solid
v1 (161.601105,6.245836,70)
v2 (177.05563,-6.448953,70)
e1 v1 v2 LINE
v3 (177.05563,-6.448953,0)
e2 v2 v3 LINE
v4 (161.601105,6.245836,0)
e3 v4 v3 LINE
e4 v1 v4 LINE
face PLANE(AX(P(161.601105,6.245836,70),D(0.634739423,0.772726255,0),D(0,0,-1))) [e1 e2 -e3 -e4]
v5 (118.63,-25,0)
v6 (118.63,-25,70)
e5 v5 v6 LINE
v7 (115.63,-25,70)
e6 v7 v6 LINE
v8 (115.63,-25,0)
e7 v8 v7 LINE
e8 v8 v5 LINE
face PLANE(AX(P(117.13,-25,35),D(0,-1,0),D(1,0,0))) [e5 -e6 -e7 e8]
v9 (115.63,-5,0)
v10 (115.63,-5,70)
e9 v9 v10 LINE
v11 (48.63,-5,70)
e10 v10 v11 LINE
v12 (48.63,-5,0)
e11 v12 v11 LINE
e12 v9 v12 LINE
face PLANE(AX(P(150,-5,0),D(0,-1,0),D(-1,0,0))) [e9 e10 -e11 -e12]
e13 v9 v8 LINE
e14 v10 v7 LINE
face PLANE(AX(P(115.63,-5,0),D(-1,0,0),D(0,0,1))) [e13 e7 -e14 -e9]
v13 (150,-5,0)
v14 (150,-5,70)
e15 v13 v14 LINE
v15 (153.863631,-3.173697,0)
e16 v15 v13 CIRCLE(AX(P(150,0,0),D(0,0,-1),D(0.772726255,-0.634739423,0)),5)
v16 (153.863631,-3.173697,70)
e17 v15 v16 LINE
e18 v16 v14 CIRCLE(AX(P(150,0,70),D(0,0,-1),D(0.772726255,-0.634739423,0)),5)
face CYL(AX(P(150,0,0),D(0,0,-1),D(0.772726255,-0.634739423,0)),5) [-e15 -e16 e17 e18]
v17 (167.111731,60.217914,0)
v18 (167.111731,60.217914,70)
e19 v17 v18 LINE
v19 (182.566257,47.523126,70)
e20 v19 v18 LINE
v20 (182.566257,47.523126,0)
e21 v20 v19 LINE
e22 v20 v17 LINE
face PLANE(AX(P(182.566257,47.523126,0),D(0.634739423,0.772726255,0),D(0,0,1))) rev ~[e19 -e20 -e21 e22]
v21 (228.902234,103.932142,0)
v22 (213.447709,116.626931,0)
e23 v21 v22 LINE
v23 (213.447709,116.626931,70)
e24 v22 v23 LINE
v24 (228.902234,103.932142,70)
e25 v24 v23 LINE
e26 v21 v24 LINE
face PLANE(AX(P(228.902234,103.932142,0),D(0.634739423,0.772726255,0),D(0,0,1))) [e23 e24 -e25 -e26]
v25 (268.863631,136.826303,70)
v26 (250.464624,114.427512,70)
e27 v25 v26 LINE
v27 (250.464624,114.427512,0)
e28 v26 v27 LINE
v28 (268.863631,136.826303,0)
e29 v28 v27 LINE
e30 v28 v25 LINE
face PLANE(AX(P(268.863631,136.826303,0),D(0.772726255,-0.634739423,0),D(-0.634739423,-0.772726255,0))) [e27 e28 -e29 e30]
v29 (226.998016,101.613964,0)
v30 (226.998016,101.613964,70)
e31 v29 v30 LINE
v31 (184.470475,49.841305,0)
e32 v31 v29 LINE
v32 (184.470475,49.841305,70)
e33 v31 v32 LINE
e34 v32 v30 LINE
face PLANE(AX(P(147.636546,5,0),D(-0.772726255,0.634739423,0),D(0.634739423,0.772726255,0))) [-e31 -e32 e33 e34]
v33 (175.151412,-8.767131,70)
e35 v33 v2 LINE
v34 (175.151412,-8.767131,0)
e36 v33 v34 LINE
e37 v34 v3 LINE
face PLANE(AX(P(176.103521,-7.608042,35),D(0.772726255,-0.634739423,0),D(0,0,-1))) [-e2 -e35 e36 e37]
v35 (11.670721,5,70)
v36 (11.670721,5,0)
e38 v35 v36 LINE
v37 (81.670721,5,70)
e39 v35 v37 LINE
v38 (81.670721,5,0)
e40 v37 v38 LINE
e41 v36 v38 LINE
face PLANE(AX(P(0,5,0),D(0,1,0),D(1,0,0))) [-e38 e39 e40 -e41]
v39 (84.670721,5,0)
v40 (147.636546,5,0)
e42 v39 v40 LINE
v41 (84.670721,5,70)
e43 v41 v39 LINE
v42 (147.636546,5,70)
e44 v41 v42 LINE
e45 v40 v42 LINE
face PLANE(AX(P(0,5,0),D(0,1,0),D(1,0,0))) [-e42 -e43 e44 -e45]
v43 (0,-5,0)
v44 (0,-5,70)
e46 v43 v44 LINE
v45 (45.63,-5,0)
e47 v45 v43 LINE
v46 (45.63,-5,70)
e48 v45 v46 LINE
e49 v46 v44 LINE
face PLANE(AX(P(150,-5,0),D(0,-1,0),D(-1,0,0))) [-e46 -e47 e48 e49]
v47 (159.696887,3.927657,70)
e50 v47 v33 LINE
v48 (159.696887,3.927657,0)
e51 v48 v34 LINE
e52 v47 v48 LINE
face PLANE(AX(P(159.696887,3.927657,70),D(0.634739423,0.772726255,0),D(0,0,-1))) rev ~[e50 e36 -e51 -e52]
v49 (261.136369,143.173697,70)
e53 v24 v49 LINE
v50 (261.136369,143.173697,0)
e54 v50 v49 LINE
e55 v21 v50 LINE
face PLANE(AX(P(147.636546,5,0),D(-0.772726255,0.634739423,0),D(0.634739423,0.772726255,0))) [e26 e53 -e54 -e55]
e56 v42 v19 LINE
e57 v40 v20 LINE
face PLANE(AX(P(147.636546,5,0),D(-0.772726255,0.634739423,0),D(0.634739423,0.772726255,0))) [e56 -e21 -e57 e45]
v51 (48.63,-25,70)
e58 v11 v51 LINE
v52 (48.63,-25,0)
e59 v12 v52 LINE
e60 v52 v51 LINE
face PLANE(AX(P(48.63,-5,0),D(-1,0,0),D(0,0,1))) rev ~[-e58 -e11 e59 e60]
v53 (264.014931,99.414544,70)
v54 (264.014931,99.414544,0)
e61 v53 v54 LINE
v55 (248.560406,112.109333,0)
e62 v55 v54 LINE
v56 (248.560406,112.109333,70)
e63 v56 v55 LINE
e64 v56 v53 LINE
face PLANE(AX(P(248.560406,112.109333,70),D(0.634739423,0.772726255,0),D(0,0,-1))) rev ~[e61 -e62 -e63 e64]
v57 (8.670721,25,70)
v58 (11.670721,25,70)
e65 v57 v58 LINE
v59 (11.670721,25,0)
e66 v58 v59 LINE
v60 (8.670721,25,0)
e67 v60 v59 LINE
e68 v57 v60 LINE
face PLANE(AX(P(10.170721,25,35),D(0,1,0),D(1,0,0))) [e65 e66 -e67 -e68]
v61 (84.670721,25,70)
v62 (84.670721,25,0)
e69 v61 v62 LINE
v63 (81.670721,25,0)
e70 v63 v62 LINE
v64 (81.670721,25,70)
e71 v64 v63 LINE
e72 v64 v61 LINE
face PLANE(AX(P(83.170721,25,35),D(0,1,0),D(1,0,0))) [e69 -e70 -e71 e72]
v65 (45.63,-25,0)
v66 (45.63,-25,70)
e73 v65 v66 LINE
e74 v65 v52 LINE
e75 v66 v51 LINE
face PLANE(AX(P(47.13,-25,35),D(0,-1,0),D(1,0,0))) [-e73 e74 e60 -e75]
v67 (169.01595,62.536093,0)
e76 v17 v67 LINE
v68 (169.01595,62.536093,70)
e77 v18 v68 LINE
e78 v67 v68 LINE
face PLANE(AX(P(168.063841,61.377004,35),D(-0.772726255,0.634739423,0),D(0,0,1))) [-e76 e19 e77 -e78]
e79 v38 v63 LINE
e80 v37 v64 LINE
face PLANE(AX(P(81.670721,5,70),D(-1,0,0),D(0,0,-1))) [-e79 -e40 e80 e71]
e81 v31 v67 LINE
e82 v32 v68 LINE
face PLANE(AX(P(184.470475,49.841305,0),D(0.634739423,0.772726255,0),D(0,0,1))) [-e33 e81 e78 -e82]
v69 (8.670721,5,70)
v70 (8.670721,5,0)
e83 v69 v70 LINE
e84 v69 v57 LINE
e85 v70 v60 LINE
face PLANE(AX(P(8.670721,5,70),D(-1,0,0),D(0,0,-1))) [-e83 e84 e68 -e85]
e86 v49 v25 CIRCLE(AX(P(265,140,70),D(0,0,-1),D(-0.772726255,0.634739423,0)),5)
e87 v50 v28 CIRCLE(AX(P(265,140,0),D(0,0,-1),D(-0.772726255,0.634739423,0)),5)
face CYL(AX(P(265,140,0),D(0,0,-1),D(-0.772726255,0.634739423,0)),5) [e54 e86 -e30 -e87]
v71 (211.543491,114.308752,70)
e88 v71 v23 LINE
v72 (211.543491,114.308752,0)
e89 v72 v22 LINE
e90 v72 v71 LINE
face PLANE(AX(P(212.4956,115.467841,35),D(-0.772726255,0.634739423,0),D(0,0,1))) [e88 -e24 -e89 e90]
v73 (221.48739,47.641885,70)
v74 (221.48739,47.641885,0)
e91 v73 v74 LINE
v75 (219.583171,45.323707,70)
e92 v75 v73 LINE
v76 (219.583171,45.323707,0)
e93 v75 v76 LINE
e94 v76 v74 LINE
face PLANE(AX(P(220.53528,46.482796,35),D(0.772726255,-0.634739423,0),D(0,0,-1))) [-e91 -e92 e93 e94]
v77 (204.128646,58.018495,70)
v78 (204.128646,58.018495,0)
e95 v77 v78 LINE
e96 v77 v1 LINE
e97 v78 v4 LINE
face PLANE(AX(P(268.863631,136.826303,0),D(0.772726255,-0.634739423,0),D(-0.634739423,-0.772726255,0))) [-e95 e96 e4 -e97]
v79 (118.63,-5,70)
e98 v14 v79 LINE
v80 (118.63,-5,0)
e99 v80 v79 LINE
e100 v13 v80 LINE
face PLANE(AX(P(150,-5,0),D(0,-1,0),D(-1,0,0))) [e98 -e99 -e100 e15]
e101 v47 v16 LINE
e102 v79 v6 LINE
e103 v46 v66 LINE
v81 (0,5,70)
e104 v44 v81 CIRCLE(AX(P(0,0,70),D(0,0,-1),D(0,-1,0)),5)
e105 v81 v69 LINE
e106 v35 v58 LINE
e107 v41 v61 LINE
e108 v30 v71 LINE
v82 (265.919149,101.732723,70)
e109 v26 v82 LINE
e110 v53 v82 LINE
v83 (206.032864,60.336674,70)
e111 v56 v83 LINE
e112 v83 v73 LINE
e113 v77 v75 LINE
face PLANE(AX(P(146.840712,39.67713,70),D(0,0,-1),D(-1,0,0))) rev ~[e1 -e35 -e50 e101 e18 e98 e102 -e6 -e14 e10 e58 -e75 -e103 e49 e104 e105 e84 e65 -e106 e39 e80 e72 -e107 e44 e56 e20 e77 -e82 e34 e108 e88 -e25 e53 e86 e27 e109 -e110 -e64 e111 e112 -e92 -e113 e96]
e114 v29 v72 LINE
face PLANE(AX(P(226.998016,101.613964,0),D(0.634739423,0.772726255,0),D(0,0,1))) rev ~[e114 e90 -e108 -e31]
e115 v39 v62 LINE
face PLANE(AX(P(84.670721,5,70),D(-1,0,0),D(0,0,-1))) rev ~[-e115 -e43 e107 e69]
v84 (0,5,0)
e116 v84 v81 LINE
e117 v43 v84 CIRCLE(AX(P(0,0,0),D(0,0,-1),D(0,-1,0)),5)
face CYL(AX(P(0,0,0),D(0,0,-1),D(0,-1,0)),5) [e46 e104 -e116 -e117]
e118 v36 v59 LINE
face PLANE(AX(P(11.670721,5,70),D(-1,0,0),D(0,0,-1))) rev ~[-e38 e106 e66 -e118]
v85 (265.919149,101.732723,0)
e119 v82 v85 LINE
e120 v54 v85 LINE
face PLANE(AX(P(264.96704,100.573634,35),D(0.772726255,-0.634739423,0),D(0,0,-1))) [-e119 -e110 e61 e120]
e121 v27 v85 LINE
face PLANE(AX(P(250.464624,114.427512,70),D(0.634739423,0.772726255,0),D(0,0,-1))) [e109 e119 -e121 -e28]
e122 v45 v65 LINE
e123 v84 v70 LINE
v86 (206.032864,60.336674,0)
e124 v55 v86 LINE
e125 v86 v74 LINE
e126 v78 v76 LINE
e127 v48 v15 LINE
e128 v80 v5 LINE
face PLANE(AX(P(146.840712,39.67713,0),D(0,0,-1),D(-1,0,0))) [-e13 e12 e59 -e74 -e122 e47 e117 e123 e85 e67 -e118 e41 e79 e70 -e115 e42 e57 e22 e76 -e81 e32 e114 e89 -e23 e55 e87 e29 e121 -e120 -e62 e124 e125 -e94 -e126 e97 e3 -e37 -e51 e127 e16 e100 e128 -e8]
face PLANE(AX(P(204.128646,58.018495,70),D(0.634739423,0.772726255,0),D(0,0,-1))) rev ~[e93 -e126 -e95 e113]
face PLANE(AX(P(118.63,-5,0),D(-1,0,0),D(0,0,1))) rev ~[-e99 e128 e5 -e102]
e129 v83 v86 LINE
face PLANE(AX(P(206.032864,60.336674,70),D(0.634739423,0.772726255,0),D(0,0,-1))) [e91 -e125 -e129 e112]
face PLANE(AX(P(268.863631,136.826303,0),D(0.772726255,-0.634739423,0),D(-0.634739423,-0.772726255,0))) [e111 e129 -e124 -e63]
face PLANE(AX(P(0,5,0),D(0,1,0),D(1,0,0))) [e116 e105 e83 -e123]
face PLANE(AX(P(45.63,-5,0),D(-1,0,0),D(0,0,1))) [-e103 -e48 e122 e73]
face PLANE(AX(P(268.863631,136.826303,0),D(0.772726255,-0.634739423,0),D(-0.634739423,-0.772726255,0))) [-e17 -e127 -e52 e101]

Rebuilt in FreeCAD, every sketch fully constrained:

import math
import FreeCAD as App
import Part
import Sketcher
from FreeCAD import Vector

doc = App.newDocument("Part")
body = doc.addObject("PartDesign::Body", "Body")

sketch1 = body.newObject("Sketcher::SketchObject", "Sketch")
sketch1.AttachmentSupport = (doc.getObject("XY_Plane"), [""])
sketch1.MapMode = "FlatFace"
sketch1.addGeometry([
    Part.LineSegment(Vector(0, -5, 0), Vector(150, -5, 0)),
    Part.ArcOfCircle(Part.Circle(Vector(150, 0, 0), Vector(0, 0, 1), 5), math.radians(-90), math.radians(-39.400661)),
    Part.LineSegment(Vector(153.863631, -3.173697, 0), Vector(268.863631, 136.826303, 0)),
    Part.ArcOfCircle(Part.Circle(Vector(265, 140, 0), Vector(0, 0, 1), 5), math.radians(-39.400661), math.radians(140.599339)),
    Part.LineSegment(Vector(261.136369, 143.173697, 0), Vector(147.636546, 5, 0)),
    Part.LineSegment(Vector(147.636546, 5, 0), Vector(0, 5, 0)),
    Part.ArcOfCircle(Part.Circle(Vector(0, 0, 0), Vector(0, 0, 1), 5), math.radians(90), math.radians(270)),
], False)
sketch1.addConstraint([
    Sketcher.Constraint("Tangent", 0, 2, 1, 1),
    Sketcher.Constraint("Tangent", 1, 2, 2, 1),
    Sketcher.Constraint("Tangent", 2, 2, 3, 1),
    Sketcher.Constraint("Tangent", 3, 2, 4, 1),
    Sketcher.Constraint("Coincident", 4, 2, 5, 1),
    Sketcher.Constraint("Tangent", 5, 2, 6, 1),
    Sketcher.Constraint("Tangent", 6, 2, 0, 1),
    Sketcher.Constraint("Horizontal", 0),
    Sketcher.Constraint("Horizontal", 5),
    Sketcher.Constraint("Coincident", 6, 3, -1, 1),
    Sketcher.Constraint("Equal", 1, 3),
    Sketcher.Constraint("Equal", 3, 6),
    Sketcher.Constraint("Parallel", 2, 4),
    Sketcher.Constraint("Radius", 1, 5.0),
    Sketcher.Constraint("DistanceX", 0, 1, 0, 2, 150.0),
    Sketcher.Constraint("DistanceX", -1, 1, 3, 3, 265.0),
    Sketcher.Constraint("DistanceY", -1, 1, 3, 3, 140.0),
])
pad1 = body.newObject("PartDesign::Pad", "Pad")
pad1.Profile = sketch1
pad1.Length = 70

sketch2 = body.newObject("Sketcher::SketchObject", "Sketch001")
sketch2.AttachmentSupport = (doc.getObject("XZ_Plane"), [""])
sketch2.MapMode = "FlatFace"
sketch2.AttachmentOffset = App.Placement(Vector(0, 0, -5), App.Rotation())
sketch2.addGeometry([
    Part.LineSegment(Vector(8.670721, 0, 0), Vector(8.670721, 70, 0)),
    Part.LineSegment(Vector(8.670721, 70, 0), Vector(11.670721, 70, 0)),
    Part.LineSegment(Vector(11.670721, 70, 0), Vector(11.670721, 0, 0)),
    Part.LineSegment(Vector(11.670721, 0, 0), Vector(8.670721, 0, 0)),
], False)
sketch2.addConstraint([
    Sketcher.Constraint("Coincident", 0, 2, 1, 1),
    Sketcher.Constraint("Coincident", 1, 2, 2, 1),
    Sketcher.Constraint("Coincident", 2, 2, 3, 1),
    Sketcher.Constraint("Coincident", 3, 2, 0, 1),
    Sketcher.Constraint("Vertical", 0),
    Sketcher.Constraint("Horizontal", 1),
    Sketcher.Constraint("Vertical", 2),
    Sketcher.Constraint("Horizontal", 3),
    Sketcher.Constraint("PointOnObject", 2, 2, -1),
    Sketcher.Constraint("DistanceX", 1, 1, 1, 2, 3.0),
    Sketcher.Constraint("DistanceY", 0, 1, 0, 2, 70.0),
    Sketcher.Constraint("DistanceX", -1, 1, 0, 2, 8.670721),
])
pad2 = body.newObject("PartDesign::Pad", "Pad001")
pad2.Profile = sketch2
pad2.Length = 20
pad2.Reversed = True
doc.recompute()

linearpattern = body.newObject("PartDesign::LinearPattern", "LinearPattern")
linearpattern.Originals = [pad2]
linearpattern.Direction = (doc.getObject("X_Axis"), [""])
linearpattern.Mode = "offset"
linearpattern.Offset = 73
linearpattern.Occurrences = 2
body.Tip = linearpattern

sketch3 = body.newObject("Sketcher::SketchObject", "Sketch002")
sketch3.Placement = App.Placement(Vector(85.702248, -70.398275, 0), App.Rotation(Vector(0, 0, 1), Vector(0.634739423, 0.772726255, 0), Vector(-0.772726255, 0.634739423, 0), "ZXY"))
sketch3.addGeometry([
    Part.LineSegment(Vector(0, 155.604367, 0), Vector(0, 152.604367, 0)),
    Part.LineSegment(Vector(0, 152.604367, 0), Vector(70, 152.604367, 0)),
    Part.LineSegment(Vector(70, 152.604367, 0), Vector(70, 155.604367, 0)),
    Part.LineSegment(Vector(70, 155.604367, 0), Vector(0, 155.604367, 0)),
], False)
sketch3.addConstraint([
    Sketcher.Constraint("Coincident", 0, 2, 1, 1),
    Sketcher.Constraint("Coincident", 1, 2, 2, 1),
    Sketcher.Constraint("Coincident", 2, 2, 3, 1),
    Sketcher.Constraint("Coincident", 3, 2, 0, 1),
    Sketcher.Constraint("Vertical", 0),
    Sketcher.Constraint("Horizontal", 1),
    Sketcher.Constraint("Vertical", 2),
    Sketcher.Constraint("Horizontal", 3),
    Sketcher.Constraint("PointOnObject", 0, 2, -2),
    Sketcher.Constraint("DistanceX", 1, 1, 1, 2, 70.0),
    Sketcher.Constraint("DistanceY", 0, 2, 0, 1, 3.0),
    Sketcher.Constraint("DistanceY", -1, 1, 0, 2, 152.604367),
])
pad3 = body.newObject("PartDesign::Pad", "Pad002")
pad3.Profile = sketch3
pad3.Length = 20
doc.recompute()

datumline = body.newObject("PartDesign::Line", "DatumLine")
datumline.Placement = App.Placement(Vector(0, 0, 0), App.Rotation(Vector(0, 0, 1), Vector(0.634739423, 0.772726255, 0)))
linearpattern2 = body.newObject("PartDesign::LinearPattern", "LinearPattern001")
linearpattern2.Originals = [pad3]
linearpattern2.Direction = (datumline, [""])
linearpattern2.Mode = "offset"
linearpattern2.Offset = 70
linearpattern2.Occurrences = 2
body.Tip = linearpattern2

sketch4 = body.newObject("Sketcher::SketchObject", "Sketch003")
sketch4.AttachmentSupport = (doc.getObject("XZ_Plane"), [""])
sketch4.MapMode = "FlatFace"
sketch4.AttachmentOffset = App.Placement(Vector(0, 0, 5), App.Rotation())
sketch4.addGeometry([
    Part.LineSegment(Vector(45.63, 70, 0), Vector(45.63, 0, 0)),
    Part.LineSegment(Vector(45.63, 0, 0), Vector(48.63, 0, 0)),
    Part.LineSegment(Vector(48.63, 0, 0), Vector(48.63, 70, 0)),
    Part.LineSegment(Vector(48.63, 70, 0), Vector(45.63, 70, 0)),
], False)
sketch4.addConstraint([
    Sketcher.Constraint("Coincident", 0, 2, 1, 1),
    Sketcher.Constraint("Coincident", 1, 2, 2, 1),
    Sketcher.Constraint("Coincident", 2, 2, 3, 1),
    Sketcher.Constraint("Coincident", 3, 2, 0, 1),
    Sketcher.Constraint("Vertical", 0),
    Sketcher.Constraint("Horizontal", 1),
    Sketcher.Constraint("Vertical", 2),
    Sketcher.Constraint("Horizontal", 3),
    Sketcher.Constraint("PointOnObject", 0, 2, -1),
    Sketcher.Constraint("DistanceX", 1, 1, 1, 2, 3.0),
    Sketcher.Constraint("DistanceY", 0, 2, 0, 1, 70.0),
    Sketcher.Constraint("DistanceX", -1, 1, 0, 2, 45.63),
])
pad4 = body.newObject("PartDesign::Pad", "Pad003")
pad4.Profile = sketch4
pad4.Length = 20
doc.recompute()

linearpattern3 = body.newObject("PartDesign::LinearPattern", "LinearPattern002")
linearpattern3.Originals = [pad4]
linearpattern3.Direction = (doc.getObject("X_Axis"), [""])
linearpattern3.Mode = "offset"
linearpattern3.Offset = 70
linearpattern3.Occurrences = 2
body.Tip = linearpattern3

sketch5 = body.newObject("Sketcher::SketchObject", "Sketch004")
sketch5.Placement = App.Placement(Vector(93.429511, -76.74567, 0), App.Rotation(Vector(0, 0, -1), Vector(0.634739423, 0.772726255, 0), Vector(0.772726255, -0.634739423, 0), "ZXY"))
sketch5.addGeometry([
    Part.LineSegment(Vector(-70, 107.400914, 0), Vector(-70, 104.400914, 0)),
    Part.LineSegment(Vector(-70, 104.400914, 0), Vector(0, 104.400914, 0)),
    Part.LineSegment(Vector(0, 104.400914, 0), Vector(0, 107.400914, 0)),
    Part.LineSegment(Vector(0, 107.400914, 0), Vector(-70, 107.400914, 0)),
], False)
sketch5.addConstraint([
    Sketcher.Constraint("Coincident", 0, 2, 1, 1),
    Sketcher.Constraint("Coincident", 1, 2, 2, 1),
    Sketcher.Constraint("Coincident", 2, 2, 3, 1),
    Sketcher.Constraint("Coincident", 3, 2, 0, 1),
    Sketcher.Constraint("Vertical", 0),
    Sketcher.Constraint("Horizontal", 1),
    Sketcher.Constraint("Vertical", 2),
    Sketcher.Constraint("Horizontal", 3),
    Sketcher.Constraint("PointOnObject", 1, 2, -2),
    Sketcher.Constraint("DistanceX", 1, 1, 1, 2, 70.0),
    Sketcher.Constraint("DistanceY", 0, 2, 0, 1, 3.0),
    Sketcher.Constraint("DistanceY", -1, 1, 0, 2, 104.400914),
])
pad5 = body.newObject("PartDesign::Pad", "Pad004")
pad5.Profile = sketch5
pad5.Length = 20
doc.recompute()

datumline2 = body.newObject("PartDesign::Line", "DatumLine001")
datumline2.Placement = App.Placement(Vector(0, 0, 0), App.Rotation(Vector(0, 0, 1), Vector(0.634739423, 0.772726255, 0)))
linearpattern4 = body.newObject("PartDesign::LinearPattern", "LinearPattern003")
linearpattern4.Originals = [pad5]
linearpattern4.Direction = (datumline2, [""])
linearpattern4.Mode = "offset"
linearpattern4.Offset = 70
linearpattern4.Occurrences = 3
body.Tip = linearpattern4

doc.recompute()
